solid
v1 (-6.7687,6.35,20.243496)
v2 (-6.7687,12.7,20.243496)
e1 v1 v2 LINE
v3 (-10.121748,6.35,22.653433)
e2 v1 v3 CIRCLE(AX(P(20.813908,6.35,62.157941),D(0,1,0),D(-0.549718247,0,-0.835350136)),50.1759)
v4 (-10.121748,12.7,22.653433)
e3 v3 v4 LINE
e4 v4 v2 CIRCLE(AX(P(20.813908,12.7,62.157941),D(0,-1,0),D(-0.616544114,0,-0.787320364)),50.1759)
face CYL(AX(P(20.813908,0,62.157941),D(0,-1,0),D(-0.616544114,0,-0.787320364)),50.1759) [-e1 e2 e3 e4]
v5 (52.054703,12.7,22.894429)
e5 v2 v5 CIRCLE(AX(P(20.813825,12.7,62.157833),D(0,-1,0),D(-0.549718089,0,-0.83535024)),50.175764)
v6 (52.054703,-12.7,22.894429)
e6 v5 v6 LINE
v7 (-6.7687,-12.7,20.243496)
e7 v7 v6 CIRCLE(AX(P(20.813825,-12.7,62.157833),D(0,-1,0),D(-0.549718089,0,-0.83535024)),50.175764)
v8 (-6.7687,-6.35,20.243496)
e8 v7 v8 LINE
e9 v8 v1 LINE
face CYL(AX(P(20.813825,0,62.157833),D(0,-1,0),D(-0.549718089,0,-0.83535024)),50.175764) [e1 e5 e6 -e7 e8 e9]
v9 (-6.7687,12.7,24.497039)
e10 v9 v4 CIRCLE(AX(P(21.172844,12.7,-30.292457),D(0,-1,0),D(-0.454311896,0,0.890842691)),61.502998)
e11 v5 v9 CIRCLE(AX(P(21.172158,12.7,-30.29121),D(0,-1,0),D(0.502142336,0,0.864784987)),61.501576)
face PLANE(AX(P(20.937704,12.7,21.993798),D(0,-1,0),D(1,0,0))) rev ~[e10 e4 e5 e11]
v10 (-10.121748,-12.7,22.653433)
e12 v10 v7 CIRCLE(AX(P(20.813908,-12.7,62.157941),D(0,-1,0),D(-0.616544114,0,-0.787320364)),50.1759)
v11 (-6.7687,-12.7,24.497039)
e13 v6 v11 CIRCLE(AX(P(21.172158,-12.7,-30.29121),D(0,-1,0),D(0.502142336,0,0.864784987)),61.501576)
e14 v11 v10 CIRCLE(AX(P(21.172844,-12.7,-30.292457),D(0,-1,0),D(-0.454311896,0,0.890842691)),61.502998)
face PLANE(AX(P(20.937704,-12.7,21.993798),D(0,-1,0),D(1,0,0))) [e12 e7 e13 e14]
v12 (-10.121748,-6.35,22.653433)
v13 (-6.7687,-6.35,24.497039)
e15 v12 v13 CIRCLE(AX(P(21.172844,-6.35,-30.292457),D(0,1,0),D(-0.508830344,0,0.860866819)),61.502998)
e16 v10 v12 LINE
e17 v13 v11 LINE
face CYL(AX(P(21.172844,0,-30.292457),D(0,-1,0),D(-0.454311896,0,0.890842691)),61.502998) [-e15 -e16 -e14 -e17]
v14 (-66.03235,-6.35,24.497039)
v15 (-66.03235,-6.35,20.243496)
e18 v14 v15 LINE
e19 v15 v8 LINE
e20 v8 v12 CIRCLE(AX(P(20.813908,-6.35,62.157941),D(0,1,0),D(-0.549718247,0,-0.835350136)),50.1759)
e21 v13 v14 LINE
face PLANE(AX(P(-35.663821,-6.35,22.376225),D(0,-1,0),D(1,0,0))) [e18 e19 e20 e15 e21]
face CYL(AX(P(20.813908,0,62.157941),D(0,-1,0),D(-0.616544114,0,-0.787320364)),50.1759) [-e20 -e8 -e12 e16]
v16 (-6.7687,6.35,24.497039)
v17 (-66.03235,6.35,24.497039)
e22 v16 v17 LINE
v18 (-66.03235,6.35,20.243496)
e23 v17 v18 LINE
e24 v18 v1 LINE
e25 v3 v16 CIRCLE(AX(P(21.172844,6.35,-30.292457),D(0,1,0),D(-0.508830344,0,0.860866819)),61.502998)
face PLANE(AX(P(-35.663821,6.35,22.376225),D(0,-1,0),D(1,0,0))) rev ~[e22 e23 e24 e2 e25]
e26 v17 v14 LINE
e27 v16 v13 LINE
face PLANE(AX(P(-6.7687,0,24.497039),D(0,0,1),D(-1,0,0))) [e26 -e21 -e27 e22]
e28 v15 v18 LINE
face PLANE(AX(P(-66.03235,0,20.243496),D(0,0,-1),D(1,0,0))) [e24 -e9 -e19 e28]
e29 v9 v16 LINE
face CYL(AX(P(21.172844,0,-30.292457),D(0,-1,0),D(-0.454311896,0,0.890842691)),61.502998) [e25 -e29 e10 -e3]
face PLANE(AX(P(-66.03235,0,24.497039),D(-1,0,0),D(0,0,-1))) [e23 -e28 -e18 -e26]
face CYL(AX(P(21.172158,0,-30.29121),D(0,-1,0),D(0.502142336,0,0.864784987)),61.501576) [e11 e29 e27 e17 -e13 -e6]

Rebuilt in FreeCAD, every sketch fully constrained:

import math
import FreeCAD as App
import Part
import Sketcher
Q = App.Units.Quantity

doc = App.newDocument("Part")
params = doc.addObject("Spreadsheet::Sheet", "Params")
for row, (alias, value) in enumerate([
    ("pad1_length", "1 in"),
    ("pad2_length", "0.5 in"),
], start=1):
    params.set(f"A{row}", alias)
    params.set(f"B{row}", "=" + value)
    params.setAlias(f"B{row}", alias)

body = doc.addObject("PartDesign::Body", "Body")

sketch1 = doc.addObject("Sketcher::SketchObject", "Sketch")
body.addObject(sketch1)
sketch1.AttachmentSupport = (doc.XZ_Plane, [""])
sketch1.MapMode = "FlatFace"
sketch1.addGeometry(Part.ArcOfCircle(Part.Circle(App.Vector(20.813825, 62.157833, 0), App.Vector(0, 0, 1), 50.175764), math.radians(-123.347675), math.radians(-51.491639)), False)
sketch1.addGeometry(Part.ArcOfCircle(Part.Circle(App.Vector(21.172158, -30.29121, 0), App.Vector(0, 0, 1), 61.501576), math.radians(59.858163), math.radians(117.020628)), False)
sketch1.addGeometry(Part.ArcOfCircle(Part.Circle(App.Vector(21.172844, -30.292457, 0), App.Vector(0, 0, 1), 61.502998), math.radians(117.020669), math.radians(120.585951)), False)
sketch1.addGeometry(Part.ArcOfCircle(Part.Circle(App.Vector(20.813908, 62.157941, 0), App.Vector(0, 0, 1), 50.1759), math.radians(-128.064204), math.radians(-123.347686)), False)
sketch1.addConstraint(Sketcher.Constraint("Coincident", 0, 2, 1, 1))
sketch1.addConstraint(Sketcher.Constraint("Tangent", 1, 2, 2, 1))
sketch1.addConstraint(Sketcher.Constraint("Coincident", 2, 2, 3, 1))
sketch1.addConstraint(Sketcher.Constraint("Tangent", 3, 2, 0, 1))
sketch1.addConstraint(Sketcher.Constraint("Vertical", 1, 2, 3, 2))
sketch1.addConstraint(Sketcher.Constraint("Radius", 2, Q("61.502998 mm")))
sketch1.addConstraint(Sketcher.Constraint("Radius", 3, Q("50.1759 mm")))
sketch1.addConstraint(Sketcher.Constraint("Radius", 0, Q("50.175764 mm")))
sketch1.addConstraint(Sketcher.Constraint("Radius", 1, Q("61.501576 mm")))
sketch1.addConstraint(Sketcher.Constraint("DistanceX", 1, 2, -1, 1, Q("6.7687 mm")))
sketch1.addConstraint(Sketcher.Constraint("DistanceY", 2, 3, 3, 3, Q("92.450398 mm")))
sketch1.addConstraint(Sketcher.Constraint("DistanceY", 1, 2, 3, 3, Q("37.660902 mm")))
sketch1.addConstraint(Sketcher.Constraint("DistanceY", 2, 2, 0, 3, Q("39.5044 mm")))
sketch1.addConstraint(Sketcher.Constraint("DistanceY", 1, 3, -1, 1, Q("30.29121 mm")))
pad1 = doc.addObject("PartDesign::Pad", "Pad")
body.addObject(pad1)
pad1.Profile = sketch1
pad1.setExpression("Length", "Params.pad1_length")
pad1.Midplane = True

sketch2 = doc.addObject("Sketcher::SketchObject", "Sketch001")
body.addObject(sketch2)
sketch2.AttachmentSupport = (doc.XZ_Plane, [""])
sketch2.MapMode = "FlatFace"
sketch2.addGeometry(Part.ArcOfCircle(Part.Circle(App.Vector(21.172844, -30.292457, 0), App.Vector(0, 0, 1), 61.502998), math.radians(117.020669), math.radians(120.585951)), False)
sketch2.addGeometry(Part.LineSegment(App.Vector(-6.7687, 24.497039, 0), App.Vector(-66.03235, 24.497039, 0)), False)
sketch2.addGeometry(Part.LineSegment(App.Vector(-66.03235, 24.497039, 0), App.Vector(-66.03235, 20.243496, 0)), False)
sketch2.addGeometry(Part.LineSegment(App.Vector(-66.03235, 20.243496, 0), App.Vector(-6.7687, 20.243496, 0)), False)
sketch2.addGeometry(Part.ArcOfCircle(Part.Circle(App.Vector(20.813908, 62.157941, 0), App.Vector(0, 0, 1), 50.1759), math.radians(-128.064204), math.radians(-123.347686)), False)
sketch2.addConstraint(Sketcher.Constraint("Coincident", 0, 1, 1, 1))
sketch2.addConstraint(Sketcher.Constraint("Coincident", 1, 2, 2, 1))
sketch2.addConstraint(Sketcher.Constraint("Coincident", 2, 2, 3, 1))
sketch2.addConstraint(Sketcher.Constraint("Coincident", 3, 2, 4, 2))
sketch2.addConstraint(Sketcher.Constraint("Coincident", 4, 1, 0, 2))
sketch2.addConstraint(Sketcher.Constraint("Horizontal", 1))
sketch2.addConstraint(Sketcher.Constraint("Vertical", 2))
sketch2.addConstraint(Sketcher.Constraint("Horizontal", 3))
sketch2.addConstraint(Sketcher.Constraint("Vertical", 0, 1, 3, 2))
sketch2.addConstraint(Sketcher.Constraint("Radius", 0, Q("61.502998 mm")))
sketch2.addConstraint(Sketcher.Constraint("Radius", 4, Q("50.1759 mm")))
sketch2.addConstraint(Sketcher.Constraint("DistanceX", 1, 2, 1, 1, Q("59.26365 mm")))
sketch2.addConstraint(Sketcher.Constraint("DistanceX", 0, 1, -1, 1, Q("6.7687 mm")))
sketch2.addConstraint(Sketcher.Constraint("DistanceY", 0, 3, 4, 3, Q("92.450398 mm")))
sketch2.addConstraint(Sketcher.Constraint("DistanceY", 0, 1, 4, 3, Q("37.660902 mm")))
sketch2.addConstraint(Sketcher.Constraint("DistanceY", 2, 2, 2, 1, Q("4.253543 mm")))
sketch2.addConstraint(Sketcher.Constraint("DistanceY", -1, 1, 4, 3, Q("62.157941 mm")))
pad2 = doc.addObject("PartDesign::Pad", "Pad001")
body.addObject(pad2)
pad2.Profile = sketch2
pad2.setExpression("Length", "Params.pad2_length")
pad2.Midplane = True

doc.recompute()
